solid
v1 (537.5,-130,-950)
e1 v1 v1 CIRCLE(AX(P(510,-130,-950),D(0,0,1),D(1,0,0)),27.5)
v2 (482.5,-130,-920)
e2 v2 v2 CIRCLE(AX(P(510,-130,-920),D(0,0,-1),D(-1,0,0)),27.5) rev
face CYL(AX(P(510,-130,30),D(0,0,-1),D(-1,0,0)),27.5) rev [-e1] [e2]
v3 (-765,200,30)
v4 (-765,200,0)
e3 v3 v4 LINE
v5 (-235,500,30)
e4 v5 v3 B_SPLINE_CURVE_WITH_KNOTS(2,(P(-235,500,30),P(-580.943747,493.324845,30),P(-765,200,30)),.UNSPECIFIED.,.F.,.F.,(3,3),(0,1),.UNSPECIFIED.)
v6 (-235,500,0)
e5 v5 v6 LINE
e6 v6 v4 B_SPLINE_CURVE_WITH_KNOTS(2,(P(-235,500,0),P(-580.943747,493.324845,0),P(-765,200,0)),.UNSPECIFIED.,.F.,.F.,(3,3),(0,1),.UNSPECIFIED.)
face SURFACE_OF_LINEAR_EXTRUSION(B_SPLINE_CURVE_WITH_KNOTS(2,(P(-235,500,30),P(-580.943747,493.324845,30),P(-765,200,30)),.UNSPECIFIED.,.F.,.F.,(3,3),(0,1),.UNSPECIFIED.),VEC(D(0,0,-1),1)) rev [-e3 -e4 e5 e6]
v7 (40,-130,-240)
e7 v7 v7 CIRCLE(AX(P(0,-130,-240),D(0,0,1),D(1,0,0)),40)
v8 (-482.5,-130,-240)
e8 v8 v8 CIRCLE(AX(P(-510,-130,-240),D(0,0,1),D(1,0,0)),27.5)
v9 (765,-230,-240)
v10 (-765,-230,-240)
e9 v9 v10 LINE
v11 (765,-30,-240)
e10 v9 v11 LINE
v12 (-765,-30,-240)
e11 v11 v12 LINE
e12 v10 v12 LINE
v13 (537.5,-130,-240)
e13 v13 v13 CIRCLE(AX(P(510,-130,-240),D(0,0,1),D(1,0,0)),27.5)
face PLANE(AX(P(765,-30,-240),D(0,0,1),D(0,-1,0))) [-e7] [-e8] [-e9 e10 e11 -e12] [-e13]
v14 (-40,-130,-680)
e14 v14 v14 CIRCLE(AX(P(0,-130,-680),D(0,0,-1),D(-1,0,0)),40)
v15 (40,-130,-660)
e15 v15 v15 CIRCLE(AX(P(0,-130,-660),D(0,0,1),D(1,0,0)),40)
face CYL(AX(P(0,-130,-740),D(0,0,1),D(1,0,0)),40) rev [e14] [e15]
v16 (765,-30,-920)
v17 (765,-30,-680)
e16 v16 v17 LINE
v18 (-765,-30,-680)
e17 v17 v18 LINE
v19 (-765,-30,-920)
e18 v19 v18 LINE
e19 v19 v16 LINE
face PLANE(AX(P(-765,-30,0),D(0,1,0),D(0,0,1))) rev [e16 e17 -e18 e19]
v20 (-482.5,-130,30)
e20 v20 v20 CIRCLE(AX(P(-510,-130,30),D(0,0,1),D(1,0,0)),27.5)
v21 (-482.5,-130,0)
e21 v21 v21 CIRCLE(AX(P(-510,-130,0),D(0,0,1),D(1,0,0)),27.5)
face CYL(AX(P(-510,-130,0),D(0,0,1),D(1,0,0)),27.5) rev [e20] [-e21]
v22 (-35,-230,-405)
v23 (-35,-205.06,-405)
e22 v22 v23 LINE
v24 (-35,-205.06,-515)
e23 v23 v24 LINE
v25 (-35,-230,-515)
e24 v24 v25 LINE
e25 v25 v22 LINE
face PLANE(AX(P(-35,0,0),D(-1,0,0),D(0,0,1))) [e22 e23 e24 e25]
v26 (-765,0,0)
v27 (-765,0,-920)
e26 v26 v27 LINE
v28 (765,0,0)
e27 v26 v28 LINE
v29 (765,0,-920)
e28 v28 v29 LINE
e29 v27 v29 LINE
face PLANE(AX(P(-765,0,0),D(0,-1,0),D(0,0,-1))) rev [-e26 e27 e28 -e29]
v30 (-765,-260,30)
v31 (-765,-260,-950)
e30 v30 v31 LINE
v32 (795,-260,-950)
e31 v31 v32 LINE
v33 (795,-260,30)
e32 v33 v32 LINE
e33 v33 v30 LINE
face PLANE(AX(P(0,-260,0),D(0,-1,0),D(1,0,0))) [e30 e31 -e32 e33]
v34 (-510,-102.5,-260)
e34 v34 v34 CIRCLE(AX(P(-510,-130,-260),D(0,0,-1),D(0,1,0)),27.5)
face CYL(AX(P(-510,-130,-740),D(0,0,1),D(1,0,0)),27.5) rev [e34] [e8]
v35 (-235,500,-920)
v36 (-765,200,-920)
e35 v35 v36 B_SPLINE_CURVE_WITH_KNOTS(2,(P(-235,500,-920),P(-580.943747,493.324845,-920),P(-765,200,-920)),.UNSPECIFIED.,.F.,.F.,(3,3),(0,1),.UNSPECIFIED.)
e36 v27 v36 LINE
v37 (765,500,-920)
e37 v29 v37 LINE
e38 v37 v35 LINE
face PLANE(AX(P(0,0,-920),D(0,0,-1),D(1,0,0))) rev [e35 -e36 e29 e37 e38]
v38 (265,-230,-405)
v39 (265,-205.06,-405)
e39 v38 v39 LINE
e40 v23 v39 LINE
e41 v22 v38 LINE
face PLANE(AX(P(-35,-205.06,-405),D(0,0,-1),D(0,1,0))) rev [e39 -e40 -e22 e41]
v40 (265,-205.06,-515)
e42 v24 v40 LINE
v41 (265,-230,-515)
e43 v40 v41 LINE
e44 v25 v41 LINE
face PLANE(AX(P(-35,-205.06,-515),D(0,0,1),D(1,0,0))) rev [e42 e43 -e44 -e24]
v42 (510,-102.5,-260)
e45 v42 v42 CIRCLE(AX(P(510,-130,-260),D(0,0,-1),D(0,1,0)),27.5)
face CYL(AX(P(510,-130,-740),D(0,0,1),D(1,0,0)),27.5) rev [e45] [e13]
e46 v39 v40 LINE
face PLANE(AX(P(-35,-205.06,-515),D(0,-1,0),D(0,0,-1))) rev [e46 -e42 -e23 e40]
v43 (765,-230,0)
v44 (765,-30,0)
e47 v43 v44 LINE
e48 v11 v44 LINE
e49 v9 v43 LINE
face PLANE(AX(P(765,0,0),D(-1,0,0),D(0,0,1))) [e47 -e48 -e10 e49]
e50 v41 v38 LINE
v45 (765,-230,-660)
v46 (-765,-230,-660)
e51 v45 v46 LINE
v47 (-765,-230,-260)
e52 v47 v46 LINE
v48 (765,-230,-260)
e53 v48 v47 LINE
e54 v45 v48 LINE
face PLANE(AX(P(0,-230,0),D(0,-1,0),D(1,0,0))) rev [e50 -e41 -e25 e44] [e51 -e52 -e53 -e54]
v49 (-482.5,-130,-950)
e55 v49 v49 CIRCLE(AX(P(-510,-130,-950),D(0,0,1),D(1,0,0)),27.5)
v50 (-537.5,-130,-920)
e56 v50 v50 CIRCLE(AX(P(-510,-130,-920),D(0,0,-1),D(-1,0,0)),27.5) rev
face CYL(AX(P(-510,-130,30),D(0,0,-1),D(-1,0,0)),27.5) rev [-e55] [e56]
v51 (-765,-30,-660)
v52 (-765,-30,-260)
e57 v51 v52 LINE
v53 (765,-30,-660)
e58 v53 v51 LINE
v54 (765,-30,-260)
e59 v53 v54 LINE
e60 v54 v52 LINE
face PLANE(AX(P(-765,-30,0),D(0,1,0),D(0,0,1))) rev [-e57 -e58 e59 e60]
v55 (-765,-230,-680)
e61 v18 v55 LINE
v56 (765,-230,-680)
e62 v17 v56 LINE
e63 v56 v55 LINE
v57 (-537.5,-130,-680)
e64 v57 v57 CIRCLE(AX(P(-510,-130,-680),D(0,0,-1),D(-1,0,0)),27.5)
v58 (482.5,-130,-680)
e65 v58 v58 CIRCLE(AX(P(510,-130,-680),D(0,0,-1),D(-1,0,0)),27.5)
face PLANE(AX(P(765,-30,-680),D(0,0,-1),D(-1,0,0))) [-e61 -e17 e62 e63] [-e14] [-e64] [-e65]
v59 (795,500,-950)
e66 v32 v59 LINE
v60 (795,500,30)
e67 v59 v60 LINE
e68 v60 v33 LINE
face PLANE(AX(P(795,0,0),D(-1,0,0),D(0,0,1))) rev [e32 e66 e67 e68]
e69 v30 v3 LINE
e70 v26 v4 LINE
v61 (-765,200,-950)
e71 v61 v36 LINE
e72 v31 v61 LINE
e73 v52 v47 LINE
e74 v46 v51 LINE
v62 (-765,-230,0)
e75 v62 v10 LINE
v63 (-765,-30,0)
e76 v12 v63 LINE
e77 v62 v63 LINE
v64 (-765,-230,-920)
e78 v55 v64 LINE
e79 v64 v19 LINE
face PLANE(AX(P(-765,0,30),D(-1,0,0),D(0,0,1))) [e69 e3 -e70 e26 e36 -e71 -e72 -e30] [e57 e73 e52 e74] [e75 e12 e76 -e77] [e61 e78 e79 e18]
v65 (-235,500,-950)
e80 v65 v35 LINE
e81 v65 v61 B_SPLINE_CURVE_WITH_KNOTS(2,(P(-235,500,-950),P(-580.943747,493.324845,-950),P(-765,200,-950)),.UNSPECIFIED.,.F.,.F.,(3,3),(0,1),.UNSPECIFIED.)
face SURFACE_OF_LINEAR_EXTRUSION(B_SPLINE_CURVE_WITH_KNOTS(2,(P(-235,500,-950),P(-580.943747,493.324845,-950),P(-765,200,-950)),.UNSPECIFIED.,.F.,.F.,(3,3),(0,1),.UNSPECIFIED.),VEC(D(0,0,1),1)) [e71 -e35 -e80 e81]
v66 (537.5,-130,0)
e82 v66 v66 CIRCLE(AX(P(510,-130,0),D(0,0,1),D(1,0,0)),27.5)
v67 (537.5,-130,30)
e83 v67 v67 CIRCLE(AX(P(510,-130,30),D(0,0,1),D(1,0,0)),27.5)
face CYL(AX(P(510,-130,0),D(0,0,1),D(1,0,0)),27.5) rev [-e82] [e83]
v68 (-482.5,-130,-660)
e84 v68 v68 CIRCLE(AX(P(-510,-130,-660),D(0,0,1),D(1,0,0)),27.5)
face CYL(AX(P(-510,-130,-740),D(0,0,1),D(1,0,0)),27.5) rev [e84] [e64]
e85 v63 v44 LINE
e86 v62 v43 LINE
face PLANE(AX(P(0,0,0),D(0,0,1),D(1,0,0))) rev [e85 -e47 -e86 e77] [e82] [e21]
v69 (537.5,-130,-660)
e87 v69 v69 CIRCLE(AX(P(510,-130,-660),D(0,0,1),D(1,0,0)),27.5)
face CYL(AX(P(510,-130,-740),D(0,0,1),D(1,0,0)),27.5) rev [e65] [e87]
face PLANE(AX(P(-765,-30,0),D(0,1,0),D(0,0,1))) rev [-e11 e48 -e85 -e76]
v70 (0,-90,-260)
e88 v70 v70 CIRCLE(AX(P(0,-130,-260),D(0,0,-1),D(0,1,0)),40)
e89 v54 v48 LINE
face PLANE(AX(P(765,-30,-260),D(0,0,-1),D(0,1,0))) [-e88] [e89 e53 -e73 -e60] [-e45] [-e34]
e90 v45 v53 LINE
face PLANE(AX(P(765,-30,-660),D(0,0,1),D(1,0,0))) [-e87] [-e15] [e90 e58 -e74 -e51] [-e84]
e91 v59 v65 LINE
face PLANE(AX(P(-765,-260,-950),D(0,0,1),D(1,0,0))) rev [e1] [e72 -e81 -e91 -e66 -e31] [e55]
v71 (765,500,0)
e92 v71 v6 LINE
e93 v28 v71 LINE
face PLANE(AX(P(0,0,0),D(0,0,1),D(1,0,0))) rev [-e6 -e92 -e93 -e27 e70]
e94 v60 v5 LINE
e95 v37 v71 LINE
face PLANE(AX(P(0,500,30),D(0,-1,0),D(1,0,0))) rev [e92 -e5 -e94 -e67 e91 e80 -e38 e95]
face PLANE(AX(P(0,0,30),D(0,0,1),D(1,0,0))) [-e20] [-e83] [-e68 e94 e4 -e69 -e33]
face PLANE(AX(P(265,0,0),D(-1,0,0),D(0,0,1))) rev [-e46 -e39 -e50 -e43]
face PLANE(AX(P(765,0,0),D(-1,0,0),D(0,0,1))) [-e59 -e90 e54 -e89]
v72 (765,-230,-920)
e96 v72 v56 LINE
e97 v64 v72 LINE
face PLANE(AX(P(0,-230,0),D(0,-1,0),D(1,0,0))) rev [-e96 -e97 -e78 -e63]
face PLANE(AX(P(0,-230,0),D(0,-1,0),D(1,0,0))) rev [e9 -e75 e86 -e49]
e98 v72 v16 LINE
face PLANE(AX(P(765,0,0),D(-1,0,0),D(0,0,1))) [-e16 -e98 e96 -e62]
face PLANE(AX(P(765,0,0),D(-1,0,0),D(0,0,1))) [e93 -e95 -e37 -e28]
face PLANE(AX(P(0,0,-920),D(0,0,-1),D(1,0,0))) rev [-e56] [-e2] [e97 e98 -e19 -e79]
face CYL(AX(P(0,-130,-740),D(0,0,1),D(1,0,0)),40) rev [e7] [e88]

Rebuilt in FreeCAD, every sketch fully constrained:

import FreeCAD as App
import Part
import Sketcher

doc = App.newDocument("Part")
body = doc.addObject("PartDesign::Body", "Body")

sketch1 = doc.addObject("Sketcher::SketchObject", "Sketch")
body.addObject(sketch1)
sketch1.AttachmentSupport = (doc.XY_Plane, [""])
sketch1.MapMode = "FlatFace"
sketch1.addGeometry([
    Part.LineSegment(App.Vector(765, 500, 0), App.Vector(-235, 500, 0)),
    Part.BSplineCurve([App.Vector(-235, 500, 0), App.Vector(-580.943747, 493.324845, 0), App.Vector(-765, 200, 0)], [3, 3], [0, 1], False, 2, [1, 1, 1], False),
    Part.LineSegment(App.Vector(-765, 200, 0), App.Vector(-765, -230, 0)),
    Part.LineSegment(App.Vector(-765, -230, 0), App.Vector(765, -230, 0)),
    Part.LineSegment(App.Vector(765, -230, 0), App.Vector(765, 500, 0)),
], False)
sketch1.addConstraint([
    Sketcher.Constraint("Block", 1),
    Sketcher.Constraint("Coincident", 0, 2, 1, 1),
    Sketcher.Constraint("Coincident", 1, 2, 2, 1),
    Sketcher.Constraint("Coincident", 2, 2, 3, 1),
    Sketcher.Constraint("Coincident", 3, 2, 4, 1),
    Sketcher.Constraint("Coincident", 4, 2, 0, 1),
    Sketcher.Constraint("Horizontal", 0),
    Sketcher.Constraint("Vertical", 2),
    Sketcher.Constraint("Horizontal", 3),
    Sketcher.Constraint("Vertical", 4),
    Sketcher.Constraint("DistanceX", 0, 2, 0, 1, 1000.0),
    Sketcher.Constraint("DistanceY", 2, 2, 2, 1, 430.0),
])
pad1 = doc.addObject("PartDesign::Pad", "Pad")
body.addObject(pad1)
pad1.Profile = sketch1
pad1.Length = 30

sketch2 = doc.addObject("Sketcher::SketchObject", "Sketch001")
body.addObject(sketch2)
sketch2.AttachmentSupport = (doc.XY_Plane, [""])
sketch2.MapMode = "FlatFace"
sketch2.AttachmentOffset = App.Placement(App.Vector(0, 0, 30), App.Rotation())
sketch2.addGeometry([
    Part.Circle(App.Vector(-510, -130, 0), App.Vector(0, 0, 1), 28),
    Part.Circle(App.Vector(510, -130, 0), App.Vector(0, 0, 1), 28),
], False)
sketch2.addConstraint([
    Sketcher.Constraint("Equal", 0, 1),
    Sketcher.Constraint("Symmetric", 0, 3, 1, 3, -2),
    Sketcher.Constraint("Diameter", 0, 55.0),
    Sketcher.Constraint("DistanceX", 0, 3, -1, 1, 510.0),
    Sketcher.Constraint("DistanceY", 0, 3, -1, 1, 130.0),
])
pocket1 = doc.addObject("PartDesign::Pocket", "Pocket")
body.addObject(pocket1)
pocket1.Profile = sketch2
pocket1.Type = "ThroughAll"

sketch3 = doc.addObject("Sketcher::SketchObject", "Sketch002")
body.addObject(sketch3)
sketch3.AttachmentSupport = (doc.XZ_Plane, [""])
sketch3.MapMode = "FlatFace"
sketch3.AttachmentOffset = App.Placement(App.Vector(0, 0, 230), App.Rotation())
sketch3.addGeometry([
    Part.LineSegment(App.Vector(-765, 30, 0), App.Vector(-765, -950, 0)),
    Part.LineSegment(App.Vector(-765, -950, 0), App.Vector(765, -950, 0)),
    Part.LineSegment(App.Vector(765, -950, 0), App.Vector(765, 30, 0)),
    Part.LineSegment(App.Vector(765, 30, 0), App.Vector(-765, 30, 0)),
], False)
sketch3.addConstraint([
    Sketcher.Constraint("Coincident", 0, 2, 1, 1),
    Sketcher.Constraint("Coincident", 1, 2, 2, 1),
    Sketcher.Constraint("Coincident", 2, 2, 3, 1),
    Sketcher.Constraint("Coincident", 3, 2, 0, 1),
    Sketcher.Constraint("Vertical", 0),
    Sketcher.Constraint("Horizontal", 1),
    Sketcher.Constraint("Vertical", 2),
    Sketcher.Constraint("Horizontal", 3),
    Sketcher.Constraint("DistanceX", 1, 1, 1, 2, 1530.0),
    Sketcher.Constraint("DistanceY", 0, 2, 0, 1, 980.0),
    Sketcher.Constraint("DistanceX", 0, 2, -1, 1, 765.0),
    Sketcher.Constraint("DistanceY", 0, 2, -1, 1, 950.0),
])
pad2 = doc.addObject("PartDesign::Pad", "Pad001")
body.addObject(pad2)
pad2.Profile = sketch3
pad2.Length = 30

sketch4 = doc.addObject("Sketcher::SketchObject", "Sketch003")
body.addObject(sketch4)
sketch4.AttachmentSupport = (doc.YZ_Plane, [""])
sketch4.MapMode = "FlatFace"
sketch4.AttachmentOffset = App.Placement(App.Vector(0, 0, 765), App.Rotation())
sketch4.addGeometry([
    Part.LineSegment(App.Vector(500, 30, 0), App.Vector(-260, 30, 0)),
    Part.LineSegment(App.Vector(-260, 30, 0), App.Vector(-260, -950, 0)),
    Part.LineSegment(App.Vector(-260, -950, 0), App.Vector(500, -950, 0)),
    Part.LineSegment(App.Vector(500, -950, 0), App.Vector(500, 30, 0)),
], False)
sketch4.addConstraint([
    Sketcher.Constraint("Coincident", 0, 2, 1, 1),
    Sketcher.Constraint("Coincident", 1, 2, 2, 1),
    Sketcher.Constraint("Coincident", 2, 2, 3, 1),
    Sketcher.Constraint("Coincident", 3, 2, 0, 1),
    Sketcher.Constraint("Horizontal", 0),
    Sketcher.Constraint("Vertical", 1),
    Sketcher.Constraint("Horizontal", 2),
    Sketcher.Constraint("Vertical", 3),
    Sketcher.Constraint("DistanceX", 0, 2, 0, 1, 760.0),
    Sketcher.Constraint("DistanceY", 1, 2, 1, 1, 980.0),
    Sketcher.Constraint("DistanceX", 0, 2, -1, 1, 260.0),
    Sketcher.Constraint("DistanceY", -1, 1, 0, 2, 30.0),
])
pad3 = doc.addObject("PartDesign::Pad", "Pad002")
body.addObject(pad3)
pad3.Profile = sketch4
pad3.Length = 30
doc.recompute()

datumplane = doc.addObject("PartDesign::Plane", "DatumPlane")
body.addObject(datumplane)
datumplane.AttachmentSupport = (doc.XY_Plane, [""])
datumplane.MapMode = "FlatFace"
datumplane.AttachmentOffset = App.Placement(App.Vector(0, 0, -460), App.Rotation())
mirrored = doc.addObject("PartDesign::Mirrored", "Mirrored")
body.addObject(mirrored)
mirrored.Originals = [pad1, pocket1, pad3]
mirrored.MirrorPlane = (datumplane, [""])
body.Tip = mirrored

sketch5 = doc.addObject("Sketcher::SketchObject", "Sketch004")
body.addObject(sketch5)
sketch5.AttachmentSupport = (doc.YZ_Plane, [""])
sketch5.MapMode = "FlatFace"
sketch5.AttachmentOffset = App.Placement(App.Vector(0, 0, 765), App.Rotation())
sketch5.addGeometry([
    Part.LineSegment(App.Vector(0, -920, 0), App.Vector(-30, -920, 0)),
    Part.LineSegment(App.Vector(-30, -920, 0), App.Vector(-30, 0, 0)),
    Part.LineSegment(App.Vector(-30, 0, 0), App.Vector(0, 0, 0)),
    Part.LineSegment(App.Vector(0, 0, 0), App.Vector(0, -920, 0)),
], False)
sketch5.addConstraint([
    Sketcher.Constraint("Coincident", 0, 2, 1, 1),
    Sketcher.Constraint("Coincident", 1, 2, 2, 1),
    Sketcher.Constraint("Coincident", 2, 2, 3, 1),
    Sketcher.Constraint("Coincident", 3, 2, 0, 1),
    Sketcher.Constraint("Horizontal", 0),
    Sketcher.Constraint("Vertical", 1),
    Sketcher.Constraint("Horizontal", 2),
    Sketcher.Constraint("Vertical", 3),
    Sketcher.Constraint("Coincident", 2, 2, -1, 1),
    Sketcher.Constraint("DistanceX", 0, 2, 0, 1, 30.0),
    Sketcher.Constraint("DistanceY", 1, 1, 1, 2, 920.0),
])
pad4 = doc.addObject("PartDesign::Pad", "Pad003")
body.addObject(pad4)
pad4.Profile = sketch5
pad4.Length = 1530
pad4.Reversed = True

sketch6 = doc.addObject("Sketcher::SketchObject", "Sketch005")
body.addObject(sketch6)
sketch6.AttachmentSupport = (doc.YZ_Plane, [""])
sketch6.MapMode = "FlatFace"
sketch6.AttachmentOffset = App.Placement(App.Vector(0, 0, -765), App.Rotation())
sketch6.addGeometry([
    Part.LineSegment(App.Vector(-30, -680, 0), App.Vector(-230, -680, 0)),
    Part.LineSegment(App.Vector(-230, -680, 0), App.Vector(-230, -660, 0)),
    Part.LineSegment(App.Vector(-230, -660, 0), App.Vector(-30, -660, 0)),
    Part.LineSegment(App.Vector(-30, -660, 0), App.Vector(-30, -680, 0)),
    Part.LineSegment(App.Vector(-30, -260, 0), App.Vector(-230, -260, 0)),
    Part.LineSegment(App.Vector(-230, -260, 0), App.Vector(-230, -240, 0)),
    Part.LineSegment(App.Vector(-230, -240, 0), App.Vector(-30, -240, 0)),
    Part.LineSegment(App.Vector(-30, -240, 0), App.Vector(-30, -260, 0)),
], False)
sketch6.addConstraint([
    Sketcher.Constraint("Coincident", 0, 2, 1, 1),
    Sketcher.Constraint("Coincident", 1, 2, 2, 1),
    Sketcher.Constraint("Coincident", 2, 2, 3, 1),
    Sketcher.Constraint("Coincident", 3, 2, 0, 1),
    Sketcher.Constraint("Coincident", 4, 2, 5, 1),
    Sketcher.Constraint("Coincident", 5, 2, 6, 1),
    Sketcher.Constraint("Coincident", 6, 2, 7, 1),
    Sketcher.Constraint("Coincident", 7, 2, 4, 1),
    Sketcher.Constraint("Horizontal", 0),
    Sketcher.Constraint("Vertical", 1),
    Sketcher.Constraint("Horizontal", 2),
    Sketcher.Constraint("Vertical", 3),
    Sketcher.Constraint("Horizontal", 4),
    Sketcher.Constraint("Vertical", 5),
    Sketcher.Constraint("Horizontal", 6),
    Sketcher.Constraint("Vertical", 7),
    Sketcher.Constraint("Vertical", 1, 2, 4, 2),
    Sketcher.Constraint("Vertical", 3, 2, 6, 2),
    Sketcher.Constraint("Equal", 3, 5),
    Sketcher.Constraint("DistanceX", 0, 2, 0, 1, 200.0),
    Sketcher.Constraint("DistanceY", 1, 1, 1, 2, 20.0),
    Sketcher.Constraint("DistanceX", 0, 2, -1, 1, 230.0),
    Sketcher.Constraint("DistanceY", 0, 2, -1, 1, 680.0),
    Sketcher.Constraint("DistanceY", 4, 2, -1, 1, 260.0),
])
pad5 = doc.addObject("PartDesign::Pad", "Pad004")
body.addObject(pad5)
pad5.Profile = sketch6
pad5.Length = 1530

sketch7 = doc.addObject("Sketcher::SketchObject", "Sketch006")
body.addObject(sketch7)
sketch7.AttachmentSupport = (doc.XY_Plane, [""])
sketch7.MapMode = "FlatFace"
sketch7.AttachmentOffset = App.Placement(App.Vector(0, 0, -240), App.Rotation())
sketch7.addGeometry([
    Part.Circle(App.Vector(-510, -130, 0), App.Vector(0, 0, 1), 28),
    Part.Circle(App.Vector(0, -130, 0), App.Vector(0, 0, 1), 40),
    Part.Circle(App.Vector(510, -130, 0), App.Vector(0, 0, 1), 28),
], False)
sketch7.addConstraint([
    Sketcher.Constraint("Equal", 0, 2),
    Sketcher.Constraint("Symmetric", 0, 3, 2, 3, -2),
    Sketcher.Constraint("PointOnObject", 1, 3, -2),
    Sketcher.Constraint("Horizontal", 0, 3, 1, 3),
    Sketcher.Constraint("Diameter", 0, 55.0),
    Sketcher.Constraint("Diameter", 1, 80.0),
    Sketcher.Constraint("DistanceX", 0, 3, -1, 1, 510.0),
    Sketcher.Constraint("DistanceY", 0, 3, -1, 1, 130.0),
])
pocket2 = doc.addObject("PartDesign::Pocket", "Pocket001")
body.addObject(pocket2)
pocket2.Profile = sketch7
pocket2.Length = 500

sketch8 = doc.addObject("Sketcher::SketchObject", "Sketch007")
body.addObject(sketch8)
sketch8.AttachmentSupport = (doc.YZ_Plane, [""])
sketch8.MapMode = "FlatFace"
sketch8.AttachmentOffset = App.Placement(App.Vector(0, 0, 265), App.Rotation())
sketch8.addGeometry([
    Part.LineSegment(App.Vector(-205, -515, 0), App.Vector(-230, -515, 0)),
    Part.LineSegment(App.Vector(-230, -515, 0), App.Vector(-230, -405, 0)),
    Part.LineSegment(App.Vector(-230, -405, 0), App.Vector(-205, -405, 0)),
    Part.LineSegment(App.Vector(-205, -405, 0), App.Vector(-205, -515, 0)),
], False)
sketch8.addConstraint([
    Sketcher.Constraint("Coincident", 0, 2, 1, 1),
    Sketcher.Constraint("Coincident", 1, 2, 2, 1),
    Sketcher.Constraint("Coincident", 2, 2, 3, 1),
    Sketcher.Constraint("Coincident", 3, 2, 0, 1),
    Sketcher.Constraint("Horizontal", 0),
    Sketcher.Constraint("Vertical", 1),
    Sketcher.Constraint("Horizontal", 2),
    Sketcher.Constraint("Vertical", 3),
    Sketcher.Constraint("DistanceY", 1, 1, 1, 2, 110.0),
    Sketcher.Constraint("DistanceX", 0, 2, -1, 1, 230.0),
    Sketcher.Constraint("DistanceY", 0, 2, -1, 1, 515.0),
    Sketcher.Constraint("DistanceX", 0, 2, 0, 1, 24.94),
])
pad6 = doc.addObject("PartDesign::Pad", "Pad005")
body.addObject(pad6)
pad6.Profile = sketch8
pad6.Length = 300
pad6.Reversed = True

doc.recompute()
